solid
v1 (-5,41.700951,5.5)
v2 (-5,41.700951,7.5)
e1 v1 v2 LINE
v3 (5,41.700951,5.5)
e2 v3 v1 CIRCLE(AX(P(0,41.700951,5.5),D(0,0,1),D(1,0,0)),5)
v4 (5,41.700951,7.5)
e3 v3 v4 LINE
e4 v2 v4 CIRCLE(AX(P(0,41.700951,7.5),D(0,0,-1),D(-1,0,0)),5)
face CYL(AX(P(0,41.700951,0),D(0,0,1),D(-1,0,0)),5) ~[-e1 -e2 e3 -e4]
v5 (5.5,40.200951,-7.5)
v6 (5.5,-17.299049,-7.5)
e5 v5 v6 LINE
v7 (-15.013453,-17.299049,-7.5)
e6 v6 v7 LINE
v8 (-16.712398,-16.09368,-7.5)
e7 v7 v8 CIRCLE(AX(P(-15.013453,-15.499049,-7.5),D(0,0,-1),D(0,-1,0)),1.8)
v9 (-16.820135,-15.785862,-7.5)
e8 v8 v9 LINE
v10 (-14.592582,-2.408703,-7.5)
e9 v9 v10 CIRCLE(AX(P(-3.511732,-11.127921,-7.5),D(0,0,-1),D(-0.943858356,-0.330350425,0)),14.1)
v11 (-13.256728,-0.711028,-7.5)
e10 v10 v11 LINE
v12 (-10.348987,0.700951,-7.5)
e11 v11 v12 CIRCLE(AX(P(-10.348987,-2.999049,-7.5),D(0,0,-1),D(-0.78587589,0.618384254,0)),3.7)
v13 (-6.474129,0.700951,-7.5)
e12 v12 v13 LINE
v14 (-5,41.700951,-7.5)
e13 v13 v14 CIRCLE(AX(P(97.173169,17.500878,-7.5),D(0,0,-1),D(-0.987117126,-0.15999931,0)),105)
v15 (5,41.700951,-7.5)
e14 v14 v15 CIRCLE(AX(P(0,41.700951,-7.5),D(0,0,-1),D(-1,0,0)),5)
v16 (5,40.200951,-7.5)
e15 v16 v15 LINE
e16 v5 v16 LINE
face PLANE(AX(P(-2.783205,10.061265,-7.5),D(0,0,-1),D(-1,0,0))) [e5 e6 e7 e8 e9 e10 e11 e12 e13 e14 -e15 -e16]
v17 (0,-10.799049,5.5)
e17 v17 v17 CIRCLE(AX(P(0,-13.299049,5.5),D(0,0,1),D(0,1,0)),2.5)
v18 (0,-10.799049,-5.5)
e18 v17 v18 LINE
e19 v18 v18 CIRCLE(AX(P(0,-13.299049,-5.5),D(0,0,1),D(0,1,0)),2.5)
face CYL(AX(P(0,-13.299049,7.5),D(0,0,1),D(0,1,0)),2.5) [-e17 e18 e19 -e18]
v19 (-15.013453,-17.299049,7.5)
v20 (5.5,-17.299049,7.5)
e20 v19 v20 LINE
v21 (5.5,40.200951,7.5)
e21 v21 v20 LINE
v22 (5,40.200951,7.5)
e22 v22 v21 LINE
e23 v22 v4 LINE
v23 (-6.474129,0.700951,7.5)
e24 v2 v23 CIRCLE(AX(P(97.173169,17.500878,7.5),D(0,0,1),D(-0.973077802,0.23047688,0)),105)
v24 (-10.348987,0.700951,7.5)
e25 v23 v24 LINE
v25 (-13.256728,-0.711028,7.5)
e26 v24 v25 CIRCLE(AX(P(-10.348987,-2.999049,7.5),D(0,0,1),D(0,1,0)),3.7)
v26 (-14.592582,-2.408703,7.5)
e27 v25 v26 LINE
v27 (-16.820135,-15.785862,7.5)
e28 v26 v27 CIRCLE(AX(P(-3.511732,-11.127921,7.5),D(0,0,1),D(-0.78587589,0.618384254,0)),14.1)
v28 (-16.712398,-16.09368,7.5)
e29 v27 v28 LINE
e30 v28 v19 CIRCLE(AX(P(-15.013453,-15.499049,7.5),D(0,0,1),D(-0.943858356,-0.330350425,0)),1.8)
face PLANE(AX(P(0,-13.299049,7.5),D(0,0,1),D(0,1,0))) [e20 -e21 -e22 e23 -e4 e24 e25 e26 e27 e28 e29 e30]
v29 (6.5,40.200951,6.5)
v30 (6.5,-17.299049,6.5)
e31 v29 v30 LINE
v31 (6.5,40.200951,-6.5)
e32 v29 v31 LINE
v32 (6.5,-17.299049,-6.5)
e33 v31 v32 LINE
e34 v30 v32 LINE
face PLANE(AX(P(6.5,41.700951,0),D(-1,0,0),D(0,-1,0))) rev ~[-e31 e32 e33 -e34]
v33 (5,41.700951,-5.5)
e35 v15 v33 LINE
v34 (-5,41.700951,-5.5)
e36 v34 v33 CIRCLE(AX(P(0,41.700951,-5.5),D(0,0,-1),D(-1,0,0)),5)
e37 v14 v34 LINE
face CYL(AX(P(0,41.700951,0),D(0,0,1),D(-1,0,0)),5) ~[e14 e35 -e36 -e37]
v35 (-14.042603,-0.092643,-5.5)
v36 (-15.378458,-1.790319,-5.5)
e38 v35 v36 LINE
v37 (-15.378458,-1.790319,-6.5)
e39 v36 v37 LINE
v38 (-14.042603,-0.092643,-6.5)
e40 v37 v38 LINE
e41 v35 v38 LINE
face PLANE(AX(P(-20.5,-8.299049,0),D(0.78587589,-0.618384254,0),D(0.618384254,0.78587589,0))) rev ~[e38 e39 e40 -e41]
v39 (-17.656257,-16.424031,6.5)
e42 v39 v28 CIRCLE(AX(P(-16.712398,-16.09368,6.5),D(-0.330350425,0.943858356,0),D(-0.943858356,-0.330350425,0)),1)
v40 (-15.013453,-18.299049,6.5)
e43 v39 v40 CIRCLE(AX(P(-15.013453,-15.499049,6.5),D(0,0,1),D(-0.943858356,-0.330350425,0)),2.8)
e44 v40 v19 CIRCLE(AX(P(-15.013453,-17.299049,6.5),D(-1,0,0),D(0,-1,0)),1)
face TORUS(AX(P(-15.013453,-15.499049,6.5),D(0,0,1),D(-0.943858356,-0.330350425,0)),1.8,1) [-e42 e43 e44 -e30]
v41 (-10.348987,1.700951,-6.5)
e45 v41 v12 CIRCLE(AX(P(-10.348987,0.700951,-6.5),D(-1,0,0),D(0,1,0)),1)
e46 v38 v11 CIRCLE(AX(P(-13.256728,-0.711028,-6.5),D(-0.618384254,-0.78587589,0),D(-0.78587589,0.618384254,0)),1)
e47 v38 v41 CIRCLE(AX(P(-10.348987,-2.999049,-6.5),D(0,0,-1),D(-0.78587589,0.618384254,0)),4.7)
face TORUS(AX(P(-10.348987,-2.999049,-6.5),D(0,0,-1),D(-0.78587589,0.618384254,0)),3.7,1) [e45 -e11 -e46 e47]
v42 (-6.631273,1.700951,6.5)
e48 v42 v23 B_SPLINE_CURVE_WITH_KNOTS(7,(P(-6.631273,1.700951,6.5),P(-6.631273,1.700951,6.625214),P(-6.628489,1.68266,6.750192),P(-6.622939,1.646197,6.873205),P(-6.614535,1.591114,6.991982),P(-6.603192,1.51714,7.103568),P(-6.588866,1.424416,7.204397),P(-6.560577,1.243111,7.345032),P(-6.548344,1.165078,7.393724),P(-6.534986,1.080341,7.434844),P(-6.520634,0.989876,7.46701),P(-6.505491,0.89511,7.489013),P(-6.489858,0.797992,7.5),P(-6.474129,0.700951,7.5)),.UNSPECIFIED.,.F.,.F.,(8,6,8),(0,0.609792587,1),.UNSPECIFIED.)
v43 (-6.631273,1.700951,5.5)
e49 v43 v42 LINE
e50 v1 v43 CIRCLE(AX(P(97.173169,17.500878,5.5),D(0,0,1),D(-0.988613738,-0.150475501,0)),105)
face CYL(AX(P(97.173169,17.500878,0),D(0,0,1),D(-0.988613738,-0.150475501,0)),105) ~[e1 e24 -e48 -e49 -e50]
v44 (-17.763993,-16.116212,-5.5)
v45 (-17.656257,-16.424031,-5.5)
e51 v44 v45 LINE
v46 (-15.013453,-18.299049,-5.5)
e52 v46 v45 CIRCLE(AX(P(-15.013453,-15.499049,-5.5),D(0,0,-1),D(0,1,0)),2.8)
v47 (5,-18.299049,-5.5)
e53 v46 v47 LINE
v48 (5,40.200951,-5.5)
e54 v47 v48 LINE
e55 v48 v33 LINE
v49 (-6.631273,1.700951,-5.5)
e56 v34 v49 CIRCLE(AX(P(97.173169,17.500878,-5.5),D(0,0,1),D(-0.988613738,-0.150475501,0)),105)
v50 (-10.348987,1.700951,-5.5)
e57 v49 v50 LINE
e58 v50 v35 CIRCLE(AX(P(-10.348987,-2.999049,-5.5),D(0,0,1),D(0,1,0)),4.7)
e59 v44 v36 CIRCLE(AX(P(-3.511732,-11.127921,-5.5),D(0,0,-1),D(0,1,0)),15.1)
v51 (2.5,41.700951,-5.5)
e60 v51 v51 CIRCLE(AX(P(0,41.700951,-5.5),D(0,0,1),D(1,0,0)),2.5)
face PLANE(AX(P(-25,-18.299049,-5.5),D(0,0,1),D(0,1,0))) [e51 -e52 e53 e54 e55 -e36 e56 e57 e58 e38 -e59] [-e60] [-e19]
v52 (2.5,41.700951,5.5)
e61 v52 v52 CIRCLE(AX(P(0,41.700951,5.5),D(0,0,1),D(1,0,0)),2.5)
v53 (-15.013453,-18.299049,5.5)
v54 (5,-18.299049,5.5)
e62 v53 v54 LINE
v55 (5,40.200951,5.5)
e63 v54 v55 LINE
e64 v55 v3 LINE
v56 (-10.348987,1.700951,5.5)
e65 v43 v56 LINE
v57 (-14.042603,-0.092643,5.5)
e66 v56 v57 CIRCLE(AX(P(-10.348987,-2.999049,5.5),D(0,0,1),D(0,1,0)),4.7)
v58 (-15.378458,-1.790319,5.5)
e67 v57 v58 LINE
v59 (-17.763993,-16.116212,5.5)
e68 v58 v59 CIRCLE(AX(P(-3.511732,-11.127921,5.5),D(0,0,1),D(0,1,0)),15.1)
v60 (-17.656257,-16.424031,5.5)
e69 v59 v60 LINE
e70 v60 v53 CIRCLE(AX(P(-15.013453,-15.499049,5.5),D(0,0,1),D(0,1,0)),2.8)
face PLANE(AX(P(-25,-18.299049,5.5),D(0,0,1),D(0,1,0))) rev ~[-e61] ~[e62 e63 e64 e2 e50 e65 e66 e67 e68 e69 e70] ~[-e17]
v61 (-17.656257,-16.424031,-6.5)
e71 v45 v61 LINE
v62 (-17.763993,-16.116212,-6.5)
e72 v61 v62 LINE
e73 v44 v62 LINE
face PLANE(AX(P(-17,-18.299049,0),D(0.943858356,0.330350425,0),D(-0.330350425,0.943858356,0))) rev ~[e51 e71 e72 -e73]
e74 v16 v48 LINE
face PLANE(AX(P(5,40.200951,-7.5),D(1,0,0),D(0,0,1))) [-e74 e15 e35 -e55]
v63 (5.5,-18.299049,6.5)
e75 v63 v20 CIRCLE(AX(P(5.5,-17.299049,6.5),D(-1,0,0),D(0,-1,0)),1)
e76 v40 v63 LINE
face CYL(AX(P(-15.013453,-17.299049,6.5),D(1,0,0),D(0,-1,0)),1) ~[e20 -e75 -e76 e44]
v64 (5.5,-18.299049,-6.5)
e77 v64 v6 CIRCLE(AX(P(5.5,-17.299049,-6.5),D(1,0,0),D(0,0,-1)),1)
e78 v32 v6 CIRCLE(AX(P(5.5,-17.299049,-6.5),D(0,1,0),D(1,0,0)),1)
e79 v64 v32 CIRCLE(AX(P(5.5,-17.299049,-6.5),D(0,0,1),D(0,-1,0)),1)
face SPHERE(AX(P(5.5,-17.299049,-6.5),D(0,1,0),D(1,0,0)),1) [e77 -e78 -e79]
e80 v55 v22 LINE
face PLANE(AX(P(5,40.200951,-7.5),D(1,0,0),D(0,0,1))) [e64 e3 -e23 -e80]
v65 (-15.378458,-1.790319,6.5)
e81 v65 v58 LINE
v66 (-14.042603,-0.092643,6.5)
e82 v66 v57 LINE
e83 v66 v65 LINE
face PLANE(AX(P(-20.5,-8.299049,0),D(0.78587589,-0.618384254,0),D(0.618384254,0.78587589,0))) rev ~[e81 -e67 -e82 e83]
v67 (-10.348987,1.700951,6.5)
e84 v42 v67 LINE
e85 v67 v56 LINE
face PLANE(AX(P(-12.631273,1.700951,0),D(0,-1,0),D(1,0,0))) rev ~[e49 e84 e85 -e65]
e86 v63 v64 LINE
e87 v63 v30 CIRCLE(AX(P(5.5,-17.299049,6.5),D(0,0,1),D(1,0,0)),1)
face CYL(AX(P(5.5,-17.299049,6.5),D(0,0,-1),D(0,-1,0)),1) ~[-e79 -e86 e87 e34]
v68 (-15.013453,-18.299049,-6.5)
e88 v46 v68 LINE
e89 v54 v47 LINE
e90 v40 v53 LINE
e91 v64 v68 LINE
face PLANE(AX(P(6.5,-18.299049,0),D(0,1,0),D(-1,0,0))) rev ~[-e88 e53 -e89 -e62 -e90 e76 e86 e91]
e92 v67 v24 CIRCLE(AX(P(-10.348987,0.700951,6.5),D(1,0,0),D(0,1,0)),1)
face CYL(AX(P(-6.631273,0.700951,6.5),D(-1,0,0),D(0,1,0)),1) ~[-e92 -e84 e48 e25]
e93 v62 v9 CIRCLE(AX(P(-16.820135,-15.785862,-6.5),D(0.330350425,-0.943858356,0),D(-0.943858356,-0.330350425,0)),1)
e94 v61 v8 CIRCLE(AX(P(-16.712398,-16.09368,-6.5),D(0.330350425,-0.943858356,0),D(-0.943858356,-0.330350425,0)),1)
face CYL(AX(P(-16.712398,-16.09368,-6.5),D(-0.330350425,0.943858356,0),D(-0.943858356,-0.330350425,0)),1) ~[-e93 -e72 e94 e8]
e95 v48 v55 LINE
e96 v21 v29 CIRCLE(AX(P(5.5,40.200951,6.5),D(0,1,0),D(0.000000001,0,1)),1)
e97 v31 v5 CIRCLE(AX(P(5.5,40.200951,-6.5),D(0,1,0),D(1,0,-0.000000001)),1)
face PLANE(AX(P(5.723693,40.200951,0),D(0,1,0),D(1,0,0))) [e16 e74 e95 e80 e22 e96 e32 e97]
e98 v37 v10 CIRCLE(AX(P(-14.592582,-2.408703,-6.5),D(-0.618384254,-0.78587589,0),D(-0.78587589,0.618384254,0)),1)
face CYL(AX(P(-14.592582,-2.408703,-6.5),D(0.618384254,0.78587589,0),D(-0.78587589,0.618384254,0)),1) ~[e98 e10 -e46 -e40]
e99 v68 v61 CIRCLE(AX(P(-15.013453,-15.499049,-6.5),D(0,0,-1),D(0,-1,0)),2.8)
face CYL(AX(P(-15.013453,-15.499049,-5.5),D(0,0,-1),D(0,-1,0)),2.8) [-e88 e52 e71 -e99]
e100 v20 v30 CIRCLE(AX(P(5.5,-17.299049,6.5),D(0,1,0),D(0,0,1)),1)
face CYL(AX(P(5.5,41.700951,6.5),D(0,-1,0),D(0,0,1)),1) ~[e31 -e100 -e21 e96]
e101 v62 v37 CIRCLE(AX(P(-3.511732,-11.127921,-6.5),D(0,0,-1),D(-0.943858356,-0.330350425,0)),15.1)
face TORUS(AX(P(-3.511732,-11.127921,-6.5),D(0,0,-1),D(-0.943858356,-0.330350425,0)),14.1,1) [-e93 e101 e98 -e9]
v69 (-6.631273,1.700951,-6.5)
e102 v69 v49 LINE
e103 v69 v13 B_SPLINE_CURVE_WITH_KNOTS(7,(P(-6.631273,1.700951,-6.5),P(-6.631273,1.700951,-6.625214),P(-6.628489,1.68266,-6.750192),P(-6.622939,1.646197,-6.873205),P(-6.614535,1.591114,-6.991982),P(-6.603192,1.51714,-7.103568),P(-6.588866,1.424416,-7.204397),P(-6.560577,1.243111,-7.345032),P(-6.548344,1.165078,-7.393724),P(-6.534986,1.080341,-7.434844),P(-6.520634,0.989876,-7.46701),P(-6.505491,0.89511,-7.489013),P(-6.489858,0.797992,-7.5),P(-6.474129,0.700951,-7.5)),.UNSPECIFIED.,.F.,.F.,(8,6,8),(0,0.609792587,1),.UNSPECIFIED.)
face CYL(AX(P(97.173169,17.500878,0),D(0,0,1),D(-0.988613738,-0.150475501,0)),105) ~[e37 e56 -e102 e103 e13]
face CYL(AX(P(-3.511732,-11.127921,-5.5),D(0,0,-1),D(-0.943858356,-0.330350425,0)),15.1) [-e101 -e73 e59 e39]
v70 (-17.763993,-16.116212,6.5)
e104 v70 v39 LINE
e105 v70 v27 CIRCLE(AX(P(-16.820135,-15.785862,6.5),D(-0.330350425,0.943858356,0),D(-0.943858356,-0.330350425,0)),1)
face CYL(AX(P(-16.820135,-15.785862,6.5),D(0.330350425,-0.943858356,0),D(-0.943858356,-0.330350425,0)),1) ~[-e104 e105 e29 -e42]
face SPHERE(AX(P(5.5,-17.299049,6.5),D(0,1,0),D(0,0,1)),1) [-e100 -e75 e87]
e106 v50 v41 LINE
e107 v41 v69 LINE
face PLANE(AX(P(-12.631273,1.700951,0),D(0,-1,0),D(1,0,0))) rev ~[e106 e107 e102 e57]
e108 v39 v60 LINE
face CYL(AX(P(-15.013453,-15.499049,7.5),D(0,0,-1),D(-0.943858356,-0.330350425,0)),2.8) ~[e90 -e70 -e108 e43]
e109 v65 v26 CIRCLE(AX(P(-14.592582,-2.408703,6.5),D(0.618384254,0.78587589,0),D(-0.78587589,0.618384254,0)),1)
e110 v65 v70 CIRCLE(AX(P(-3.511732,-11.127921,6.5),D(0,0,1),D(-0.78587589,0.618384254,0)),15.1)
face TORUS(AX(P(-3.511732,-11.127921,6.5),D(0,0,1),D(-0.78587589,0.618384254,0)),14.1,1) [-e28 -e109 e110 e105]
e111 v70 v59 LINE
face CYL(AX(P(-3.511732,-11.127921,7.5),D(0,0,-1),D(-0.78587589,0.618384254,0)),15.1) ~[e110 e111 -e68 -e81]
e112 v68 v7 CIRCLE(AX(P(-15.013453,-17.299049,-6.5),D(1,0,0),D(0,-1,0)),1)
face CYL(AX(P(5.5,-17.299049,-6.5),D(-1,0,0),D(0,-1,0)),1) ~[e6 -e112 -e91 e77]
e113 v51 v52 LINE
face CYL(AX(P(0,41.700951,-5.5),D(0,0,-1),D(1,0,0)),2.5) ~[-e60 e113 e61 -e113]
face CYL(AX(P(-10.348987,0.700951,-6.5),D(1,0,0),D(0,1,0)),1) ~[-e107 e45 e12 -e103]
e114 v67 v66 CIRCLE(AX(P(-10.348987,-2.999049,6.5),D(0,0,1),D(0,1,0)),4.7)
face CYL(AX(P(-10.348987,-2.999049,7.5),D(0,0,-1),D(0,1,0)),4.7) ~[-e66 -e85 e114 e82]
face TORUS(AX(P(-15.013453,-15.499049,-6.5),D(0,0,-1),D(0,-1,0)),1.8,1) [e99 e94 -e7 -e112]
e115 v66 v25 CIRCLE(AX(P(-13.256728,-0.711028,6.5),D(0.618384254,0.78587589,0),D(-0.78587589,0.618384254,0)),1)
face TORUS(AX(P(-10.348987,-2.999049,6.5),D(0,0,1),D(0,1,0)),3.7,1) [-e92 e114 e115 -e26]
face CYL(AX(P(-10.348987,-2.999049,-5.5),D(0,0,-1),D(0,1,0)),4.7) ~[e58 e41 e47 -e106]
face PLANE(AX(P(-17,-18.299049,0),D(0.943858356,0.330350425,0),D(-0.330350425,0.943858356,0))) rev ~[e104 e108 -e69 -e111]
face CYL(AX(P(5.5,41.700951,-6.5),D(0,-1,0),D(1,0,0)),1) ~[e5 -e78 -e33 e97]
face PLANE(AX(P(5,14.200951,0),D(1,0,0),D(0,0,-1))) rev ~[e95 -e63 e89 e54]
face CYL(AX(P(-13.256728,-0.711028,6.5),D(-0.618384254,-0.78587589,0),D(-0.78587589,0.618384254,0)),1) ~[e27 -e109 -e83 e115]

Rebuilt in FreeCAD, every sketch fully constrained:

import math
import FreeCAD as App
import Part
import Sketcher


def edges_at(feature, points):
    """Names of the edges that pass closest to the given points."""
    edges = feature.Shape.Edges
    near = lambda p: min(range(len(edges)), key=lambda i: edges[i].distToShape(Part.Vertex(*p))[0])
    return sorted({f"Edge{near(p) + 1}" for p in points})


def add_polygon(sketch, points):
    """Adds a closed chain of lines whose ends are joined by coincident constraints."""
    first, n = sketch.GeometryCount, len(points)
    for a, b in zip(points, points[1:] + points[:1]):
        sketch.addGeometry(Part.LineSegment(App.Vector(*a, 0), App.Vector(*b, 0)), False)
    for i in range(n):
        sketch.addConstraint(Sketcher.Constraint("Coincident", first + i, 2, first + (i + 1) % n, 1))

doc = App.newDocument("Part")
params = doc.addObject("Spreadsheet::Sheet", "Params")
for row, (alias, value) in enumerate([
    ("sketch1_radius", "5 mm"),
    ("sketch1_radius2", "105 mm"),
    ("sketch1_width", "6 mm"),
    ("sketch1_height", "60 mm"),
    ("sketch1_width2", "1.5 mm"),
    ("pad1_length", "15 mm"),
    ("sketch2_width", "65 mm"),
    ("sketch2_height", "11 mm"),
    ("pocket1_length", "5 mm"),
    ("pocket1_length2", "25 mm"),
    ("sketch3_diameter", "5 mm"),
    ("pad2_length", "11 mm"),
    ("sketch4_diameter", "5 mm"),
    ("pad3_length", "13 mm"),
    ("fillet_radius", "1 mm"),
    ("fillet2_radius", "4.7 mm"),
    ("fillet3_radius", "15.1 mm"),
    ("fillet4_radius", "2.8 mm"),
    ("fillet5_radius", "1 mm"),
    ("sketch5_radius", "1 mm"),
    ("sketch5_height", "13 mm"),
    ("sketch5_width", "0.5 mm"),
    ("pocket2_length", "1.5 mm"),
], start=1):
    params.set(f"A{row}", alias)
    params.set(f"B{row}", "=" + value)
    params.setAlias(f"B{row}", alias)

body = doc.addObject("PartDesign::Body", "Body")

sketch1 = body.newObject("Sketcher::SketchObject", "Sketch")
sketch1.AttachmentSupport = (doc.getObject("XY_Plane"), [""])
sketch1.MapMode = "FlatFace"
sketch1.addGeometry([
    Part.LineSegment(App.Vector(6.5, 41.7, 0), App.Vector(5, 41.7, 0)),
    Part.ArcOfCircle(Part.Circle(App.Vector(0, 41.7, 0), App.Vector(0, 0, 1), 5), math.radians(0), math.radians(180)),
    Part.ArcOfCircle(Part.Circle(App.Vector(97.2, 17.5, 0), App.Vector(0, 0, 1), 105), math.radians(167), math.radians(189)),
    Part.LineSegment(App.Vector(-6.6, 1.7, 0), App.Vector(-12.6, 1.7, 0)),
    Part.LineSegment(App.Vector(-12.6, 1.7, 0), App.Vector(-20.5, -8.3, 0)),
    Part.LineSegment(App.Vector(-20.5, -8.3, 0), App.Vector(-17, -18.3, 0)),
    Part.LineSegment(App.Vector(-17, -18.3, 0), App.Vector(6.5, -18.3, 0)),
    Part.LineSegment(App.Vector(6.5, -18.3, 0), App.Vector(6.5, 41.7, 0)),
], False)
sketch1.addConstraint([
    Sketcher.Constraint("Coincident", 0, 2, 1, 1),
    Sketcher.Constraint("Coincident", 1, 2, 2, 1),
    Sketcher.Constraint("Coincident", 2, 2, 3, 1),
    Sketcher.Constraint("Coincident", 3, 2, 4, 1),
    Sketcher.Constraint("Coincident", 4, 2, 5, 1),
    Sketcher.Constraint("Coincident", 5, 2, 6, 1),
    Sketcher.Constraint("Coincident", 6, 2, 7, 1),
    Sketcher.Constraint("Coincident", 7, 2, 0, 1),
    Sketcher.Constraint("Horizontal", 0),
    Sketcher.Constraint("Horizontal", 3),
    Sketcher.Constraint("Horizontal", 6),
    Sketcher.Constraint("Vertical", 7),
    Sketcher.Constraint("Symmetric", 0, 2, 1, 2, -2),
    Sketcher.Constraint("Horizontal", 1, 3, 0, 2),
    Sketcher.Constraint("Radius", 1, 5.0),
    Sketcher.Constraint("Radius", 2, 105.0),
    Sketcher.Constraint("DistanceX", 3, 2, 3, 1, 6.0),
    Sketcher.Constraint("DistanceY", 7, 1, 7, 2, 60.0),
    Sketcher.Constraint("DistanceX", 0, 2, 0, 1, 1.5),
    Sketcher.Constraint("DistanceX", 6, 1, 6, 2, 23.5),
    Sketcher.Constraint("DistanceY", 2, 2, 1, 2, 40.0),
    Sketcher.Constraint("DistanceY", 4, 2, 3, 2, 10.0),
    Sketcher.Constraint("DistanceX", 4, 2, 6, 2, 27.0),
    Sketcher.Constraint("DistanceY", -1, 1, 1, 3, 41.700951),
    Sketcher.Constraint("DistanceX", -1, 1, 2, 3, 97.173169),
])
sketch1.setExpression("Constraints[14]", "Params.sketch1_radius")
sketch1.setExpression("Constraints[15]", "Params.sketch1_radius2")
sketch1.setExpression("Constraints[16]", "Params.sketch1_width")
sketch1.setExpression("Constraints[17]", "Params.sketch1_height")
sketch1.setExpression("Constraints[18]", "Params.sketch1_width2")
pad1 = body.newObject("PartDesign::Pad", "Pad")
pad1.Profile = sketch1
pad1.setExpression("Length", "Params.pad1_length")
pad1.Midplane = True

sketch2 = body.newObject("Sketcher::SketchObject", "Sketch001")
sketch2.AttachmentSupport = (doc.getObject("YZ_Plane"), [""])
sketch2.MapMode = "FlatFace"
add_polygon(sketch2, [(47, 6), (-18, 6), (-18, -6), (47, -6)])
sketch2.addConstraint([
    Sketcher.Constraint("Horizontal", 0),
    Sketcher.Constraint("Vertical", 1),
    Sketcher.Constraint("Horizontal", 2),
    Sketcher.Constraint("Vertical", 3),
    Sketcher.Constraint("DistanceX", 0, 2, 0, 1, 65.0),
    Sketcher.Constraint("DistanceY", 1, 2, 1, 1, 11.0),
    Sketcher.Constraint("DistanceY", -1, 1, 0, 2, 5.5),
    Sketcher.Constraint("DistanceX", 0, 2, -1, 1, 18.299049),
])
sketch2.setExpression("Constraints[8]", "Params.sketch2_width")
sketch2.setExpression("Constraints[9]", "Params.sketch2_height")
pocket1 = body.newObject("PartDesign::Pocket", "Pocket")
pocket1.Profile = sketch2
pocket1.Type = "TwoLengths"
pocket1.setExpression("Length", "Params.pocket1_length")
pocket1.setExpression("Length2", "Params.pocket1_length2")
pocket1.Reversed = True

sketch3 = body.newObject("Sketcher::SketchObject", "Sketch002")
sketch3.AttachmentSupport = (doc.getObject("XY_Plane"), [""])
sketch3.MapMode = "FlatFace"
sketch3.AttachmentOffset = App.Placement(App.Vector(0, 0, -5.5), App.Rotation())
sketch3.addGeometry(Part.Circle(App.Vector(0, 41.7, 0), App.Vector(0, 0, 1), 2.5), False)
sketch3.addConstraint([
    Sketcher.Constraint("PointOnObject", 0, 3, -2),
    Sketcher.Constraint("Diameter", 0, 5.0),
    Sketcher.Constraint("DistanceY", -1, 1, 0, 3, 41.700951),
])
sketch3.setExpression("Constraints[1]", "Params.sketch3_diameter")
pad2 = body.newObject("PartDesign::Pad", "Pad001")
pad2.Profile = sketch3
pad2.setExpression("Length", "Params.pad2_length")

sketch4 = body.newObject("Sketcher::SketchObject", "Sketch003")
sketch4.AttachmentSupport = (doc.getObject("XY_Plane"), [""])
sketch4.MapMode = "FlatFace"
sketch4.AttachmentOffset = App.Placement(App.Vector(0, 0, 7.5), App.Rotation())
sketch4.addGeometry(Part.Circle(App.Vector(0, -13.3, 0), App.Vector(0, 0, 1), 2.5), False)
sketch4.addConstraint([
    Sketcher.Constraint("PointOnObject", 0, 3, -2),
    Sketcher.Constraint("Diameter", 0, 5.0),
    Sketcher.Constraint("DistanceY", 0, 3, -1, 1, 13.299049),
])
sketch4.setExpression("Constraints[1]", "Params.sketch4_diameter")
pad3 = body.newObject("PartDesign::Pad", "Pad002")
pad3.Profile = sketch4
pad3.setExpression("Length", "Params.pad3_length")
pad3.Reversed = True
doc.recompute()

fillet = body.newObject("PartDesign::Fillet", "Fillet")
fillet.Base = (pad3, edges_at(pad3, [(6.5, 11.701, 7.5), (6.5, 11.701, -7.5)]))
fillet.setExpression("Radius", "Params.fillet_radius")
doc.recompute()

fillet2 = body.newObject("PartDesign::Fillet", "Fillet001")
fillet2.Base = (fillet, edges_at(fillet, [(-12.631, 1.701, 6.5), (-12.631, 1.701, -6.5)]))
fillet2.setExpression("Radius", "Params.fillet2_radius")
doc.recompute()

fillet3 = body.newObject("PartDesign::Fillet", "Fillet002")
fillet3.Base = (fillet2, edges_at(fillet2, [(-20.5, -8.299, 6.5), (-20.5, -8.299, -6.5)]))
fillet3.setExpression("Radius", "Params.fillet3_radius")
doc.recompute()

fillet4 = body.newObject("PartDesign::Fillet", "Fillet003")
fillet4.Base = (fillet3, edges_at(fillet3, [(-17, -18.299, 6.5), (-17, -18.299, -6.5)]))
fillet4.setExpression("Radius", "Params.fillet4_radius")
doc.recompute()

fillet5 = body.newObject("PartDesign::Fillet", "Fillet004")
fillet5.Base = (fillet4, edges_at(fillet4, [
    (-4.757, -18.299, -7.5),
    (-4.757, -18.299, 7.5),
    (-16.634, -17.783, 7.5),
    (-16.634, -17.783, -7.5),
    (-8.49, 1.701, 7.5),
    (6.5, -18.299, 0),
    (6.207, -18.299, 7.207),
    (6.207, -18.299, -7.207),
    (-8.49, 1.701, -7.5),
    (-14.711, -0.941, 7.5),
    (-12.402, 1.229, 7.5),
    (-14.711, -0.941, -7.5),
    (-12.402, 1.229, -7.5),
    (-17.71, -16.27, 7.5),
    (-18.407, -8.648, 7.5),
    (-17.71, -16.27, -7.5),
    (-18.407, -8.648, -7.5),
]))
fillet5.setExpression("Radius", "Params.fillet5_radius")

sketch5 = body.newObject("Sketcher::SketchObject", "Sketch004")
sketch5.AttachmentSupport = (doc.getObject("XZ_Plane"), [""])
sketch5.MapMode = "FlatFace"
sketch5.AttachmentOffset = App.Placement(App.Vector(0, 0, -40.200951), App.Rotation())
sketch5.addGeometry([
    Part.LineSegment(App.Vector(6.5, 6.5, 0), App.Vector(6.5, -6.5, 0)),
    Part.ArcOfCircle(Part.Circle(App.Vector(5.5, -6.5, 0), App.Vector(0, 0, 1), 1), math.radians(-90), math.radians(0)),
    Part.LineSegment(App.Vector(5.5, -7.5, 0), App.Vector(5, -7.5, 0)),
    Part.LineSegment(App.Vector(5, -7.5, 0), App.Vector(5, 7.5, 0)),
    Part.LineSegment(App.Vector(5, 7.5, 0), App.Vector(5.5, 7.5, 0)),
    Part.ArcOfCircle(Part.Circle(App.Vector(5.5, 6.5, 0), App.Vector(0, 0, 1), 1), math.radians(0), math.radians(90)),
], False)
sketch5.addConstraint([
    Sketcher.Constraint("Tangent", 0, 2, 1, 2),
    Sketcher.Constraint("Tangent", 1, 1, 2, 1),
    Sketcher.Constraint("Coincident", 2, 2, 3, 1),
    Sketcher.Constraint("Coincident", 3, 2, 4, 1),
    Sketcher.Constraint("Tangent", 4, 2, 5, 2),
    Sketcher.Constraint("Tangent", 5, 1, 0, 1),
    Sketcher.Constraint("Vertical", 0),
    Sketcher.Constraint("Horizontal", 2),
    Sketcher.Constraint("Vertical", 3),
    Sketcher.Constraint("Horizontal", 4),
    Sketcher.Constraint("Equal", 1, 5),
    Sketcher.Constraint("Radius", 1, 1.0),
    Sketcher.Constraint("DistanceY", 0, 2, 0, 1, 13.0),
    Sketcher.Constraint("DistanceX", 2, 2, 2, 1, 0.5),
    Sketcher.Constraint("DistanceX", -1, 1, 2, 2, 5.0),
    Sketcher.Constraint("DistanceY", 1, 3, -1, 1, 6.5),
])
sketch5.setExpression("Constraints[11]", "Params.sketch5_radius")
sketch5.setExpression("Constraints[12]", "Params.sketch5_height")
sketch5.setExpression("Constraints[13]", "Params.sketch5_width")
pocket2 = body.newObject("PartDesign::Pocket", "Pocket001")
pocket2.Profile = sketch5
pocket2.setExpression("Length", "Params.pocket2_length")

doc.recompute()
